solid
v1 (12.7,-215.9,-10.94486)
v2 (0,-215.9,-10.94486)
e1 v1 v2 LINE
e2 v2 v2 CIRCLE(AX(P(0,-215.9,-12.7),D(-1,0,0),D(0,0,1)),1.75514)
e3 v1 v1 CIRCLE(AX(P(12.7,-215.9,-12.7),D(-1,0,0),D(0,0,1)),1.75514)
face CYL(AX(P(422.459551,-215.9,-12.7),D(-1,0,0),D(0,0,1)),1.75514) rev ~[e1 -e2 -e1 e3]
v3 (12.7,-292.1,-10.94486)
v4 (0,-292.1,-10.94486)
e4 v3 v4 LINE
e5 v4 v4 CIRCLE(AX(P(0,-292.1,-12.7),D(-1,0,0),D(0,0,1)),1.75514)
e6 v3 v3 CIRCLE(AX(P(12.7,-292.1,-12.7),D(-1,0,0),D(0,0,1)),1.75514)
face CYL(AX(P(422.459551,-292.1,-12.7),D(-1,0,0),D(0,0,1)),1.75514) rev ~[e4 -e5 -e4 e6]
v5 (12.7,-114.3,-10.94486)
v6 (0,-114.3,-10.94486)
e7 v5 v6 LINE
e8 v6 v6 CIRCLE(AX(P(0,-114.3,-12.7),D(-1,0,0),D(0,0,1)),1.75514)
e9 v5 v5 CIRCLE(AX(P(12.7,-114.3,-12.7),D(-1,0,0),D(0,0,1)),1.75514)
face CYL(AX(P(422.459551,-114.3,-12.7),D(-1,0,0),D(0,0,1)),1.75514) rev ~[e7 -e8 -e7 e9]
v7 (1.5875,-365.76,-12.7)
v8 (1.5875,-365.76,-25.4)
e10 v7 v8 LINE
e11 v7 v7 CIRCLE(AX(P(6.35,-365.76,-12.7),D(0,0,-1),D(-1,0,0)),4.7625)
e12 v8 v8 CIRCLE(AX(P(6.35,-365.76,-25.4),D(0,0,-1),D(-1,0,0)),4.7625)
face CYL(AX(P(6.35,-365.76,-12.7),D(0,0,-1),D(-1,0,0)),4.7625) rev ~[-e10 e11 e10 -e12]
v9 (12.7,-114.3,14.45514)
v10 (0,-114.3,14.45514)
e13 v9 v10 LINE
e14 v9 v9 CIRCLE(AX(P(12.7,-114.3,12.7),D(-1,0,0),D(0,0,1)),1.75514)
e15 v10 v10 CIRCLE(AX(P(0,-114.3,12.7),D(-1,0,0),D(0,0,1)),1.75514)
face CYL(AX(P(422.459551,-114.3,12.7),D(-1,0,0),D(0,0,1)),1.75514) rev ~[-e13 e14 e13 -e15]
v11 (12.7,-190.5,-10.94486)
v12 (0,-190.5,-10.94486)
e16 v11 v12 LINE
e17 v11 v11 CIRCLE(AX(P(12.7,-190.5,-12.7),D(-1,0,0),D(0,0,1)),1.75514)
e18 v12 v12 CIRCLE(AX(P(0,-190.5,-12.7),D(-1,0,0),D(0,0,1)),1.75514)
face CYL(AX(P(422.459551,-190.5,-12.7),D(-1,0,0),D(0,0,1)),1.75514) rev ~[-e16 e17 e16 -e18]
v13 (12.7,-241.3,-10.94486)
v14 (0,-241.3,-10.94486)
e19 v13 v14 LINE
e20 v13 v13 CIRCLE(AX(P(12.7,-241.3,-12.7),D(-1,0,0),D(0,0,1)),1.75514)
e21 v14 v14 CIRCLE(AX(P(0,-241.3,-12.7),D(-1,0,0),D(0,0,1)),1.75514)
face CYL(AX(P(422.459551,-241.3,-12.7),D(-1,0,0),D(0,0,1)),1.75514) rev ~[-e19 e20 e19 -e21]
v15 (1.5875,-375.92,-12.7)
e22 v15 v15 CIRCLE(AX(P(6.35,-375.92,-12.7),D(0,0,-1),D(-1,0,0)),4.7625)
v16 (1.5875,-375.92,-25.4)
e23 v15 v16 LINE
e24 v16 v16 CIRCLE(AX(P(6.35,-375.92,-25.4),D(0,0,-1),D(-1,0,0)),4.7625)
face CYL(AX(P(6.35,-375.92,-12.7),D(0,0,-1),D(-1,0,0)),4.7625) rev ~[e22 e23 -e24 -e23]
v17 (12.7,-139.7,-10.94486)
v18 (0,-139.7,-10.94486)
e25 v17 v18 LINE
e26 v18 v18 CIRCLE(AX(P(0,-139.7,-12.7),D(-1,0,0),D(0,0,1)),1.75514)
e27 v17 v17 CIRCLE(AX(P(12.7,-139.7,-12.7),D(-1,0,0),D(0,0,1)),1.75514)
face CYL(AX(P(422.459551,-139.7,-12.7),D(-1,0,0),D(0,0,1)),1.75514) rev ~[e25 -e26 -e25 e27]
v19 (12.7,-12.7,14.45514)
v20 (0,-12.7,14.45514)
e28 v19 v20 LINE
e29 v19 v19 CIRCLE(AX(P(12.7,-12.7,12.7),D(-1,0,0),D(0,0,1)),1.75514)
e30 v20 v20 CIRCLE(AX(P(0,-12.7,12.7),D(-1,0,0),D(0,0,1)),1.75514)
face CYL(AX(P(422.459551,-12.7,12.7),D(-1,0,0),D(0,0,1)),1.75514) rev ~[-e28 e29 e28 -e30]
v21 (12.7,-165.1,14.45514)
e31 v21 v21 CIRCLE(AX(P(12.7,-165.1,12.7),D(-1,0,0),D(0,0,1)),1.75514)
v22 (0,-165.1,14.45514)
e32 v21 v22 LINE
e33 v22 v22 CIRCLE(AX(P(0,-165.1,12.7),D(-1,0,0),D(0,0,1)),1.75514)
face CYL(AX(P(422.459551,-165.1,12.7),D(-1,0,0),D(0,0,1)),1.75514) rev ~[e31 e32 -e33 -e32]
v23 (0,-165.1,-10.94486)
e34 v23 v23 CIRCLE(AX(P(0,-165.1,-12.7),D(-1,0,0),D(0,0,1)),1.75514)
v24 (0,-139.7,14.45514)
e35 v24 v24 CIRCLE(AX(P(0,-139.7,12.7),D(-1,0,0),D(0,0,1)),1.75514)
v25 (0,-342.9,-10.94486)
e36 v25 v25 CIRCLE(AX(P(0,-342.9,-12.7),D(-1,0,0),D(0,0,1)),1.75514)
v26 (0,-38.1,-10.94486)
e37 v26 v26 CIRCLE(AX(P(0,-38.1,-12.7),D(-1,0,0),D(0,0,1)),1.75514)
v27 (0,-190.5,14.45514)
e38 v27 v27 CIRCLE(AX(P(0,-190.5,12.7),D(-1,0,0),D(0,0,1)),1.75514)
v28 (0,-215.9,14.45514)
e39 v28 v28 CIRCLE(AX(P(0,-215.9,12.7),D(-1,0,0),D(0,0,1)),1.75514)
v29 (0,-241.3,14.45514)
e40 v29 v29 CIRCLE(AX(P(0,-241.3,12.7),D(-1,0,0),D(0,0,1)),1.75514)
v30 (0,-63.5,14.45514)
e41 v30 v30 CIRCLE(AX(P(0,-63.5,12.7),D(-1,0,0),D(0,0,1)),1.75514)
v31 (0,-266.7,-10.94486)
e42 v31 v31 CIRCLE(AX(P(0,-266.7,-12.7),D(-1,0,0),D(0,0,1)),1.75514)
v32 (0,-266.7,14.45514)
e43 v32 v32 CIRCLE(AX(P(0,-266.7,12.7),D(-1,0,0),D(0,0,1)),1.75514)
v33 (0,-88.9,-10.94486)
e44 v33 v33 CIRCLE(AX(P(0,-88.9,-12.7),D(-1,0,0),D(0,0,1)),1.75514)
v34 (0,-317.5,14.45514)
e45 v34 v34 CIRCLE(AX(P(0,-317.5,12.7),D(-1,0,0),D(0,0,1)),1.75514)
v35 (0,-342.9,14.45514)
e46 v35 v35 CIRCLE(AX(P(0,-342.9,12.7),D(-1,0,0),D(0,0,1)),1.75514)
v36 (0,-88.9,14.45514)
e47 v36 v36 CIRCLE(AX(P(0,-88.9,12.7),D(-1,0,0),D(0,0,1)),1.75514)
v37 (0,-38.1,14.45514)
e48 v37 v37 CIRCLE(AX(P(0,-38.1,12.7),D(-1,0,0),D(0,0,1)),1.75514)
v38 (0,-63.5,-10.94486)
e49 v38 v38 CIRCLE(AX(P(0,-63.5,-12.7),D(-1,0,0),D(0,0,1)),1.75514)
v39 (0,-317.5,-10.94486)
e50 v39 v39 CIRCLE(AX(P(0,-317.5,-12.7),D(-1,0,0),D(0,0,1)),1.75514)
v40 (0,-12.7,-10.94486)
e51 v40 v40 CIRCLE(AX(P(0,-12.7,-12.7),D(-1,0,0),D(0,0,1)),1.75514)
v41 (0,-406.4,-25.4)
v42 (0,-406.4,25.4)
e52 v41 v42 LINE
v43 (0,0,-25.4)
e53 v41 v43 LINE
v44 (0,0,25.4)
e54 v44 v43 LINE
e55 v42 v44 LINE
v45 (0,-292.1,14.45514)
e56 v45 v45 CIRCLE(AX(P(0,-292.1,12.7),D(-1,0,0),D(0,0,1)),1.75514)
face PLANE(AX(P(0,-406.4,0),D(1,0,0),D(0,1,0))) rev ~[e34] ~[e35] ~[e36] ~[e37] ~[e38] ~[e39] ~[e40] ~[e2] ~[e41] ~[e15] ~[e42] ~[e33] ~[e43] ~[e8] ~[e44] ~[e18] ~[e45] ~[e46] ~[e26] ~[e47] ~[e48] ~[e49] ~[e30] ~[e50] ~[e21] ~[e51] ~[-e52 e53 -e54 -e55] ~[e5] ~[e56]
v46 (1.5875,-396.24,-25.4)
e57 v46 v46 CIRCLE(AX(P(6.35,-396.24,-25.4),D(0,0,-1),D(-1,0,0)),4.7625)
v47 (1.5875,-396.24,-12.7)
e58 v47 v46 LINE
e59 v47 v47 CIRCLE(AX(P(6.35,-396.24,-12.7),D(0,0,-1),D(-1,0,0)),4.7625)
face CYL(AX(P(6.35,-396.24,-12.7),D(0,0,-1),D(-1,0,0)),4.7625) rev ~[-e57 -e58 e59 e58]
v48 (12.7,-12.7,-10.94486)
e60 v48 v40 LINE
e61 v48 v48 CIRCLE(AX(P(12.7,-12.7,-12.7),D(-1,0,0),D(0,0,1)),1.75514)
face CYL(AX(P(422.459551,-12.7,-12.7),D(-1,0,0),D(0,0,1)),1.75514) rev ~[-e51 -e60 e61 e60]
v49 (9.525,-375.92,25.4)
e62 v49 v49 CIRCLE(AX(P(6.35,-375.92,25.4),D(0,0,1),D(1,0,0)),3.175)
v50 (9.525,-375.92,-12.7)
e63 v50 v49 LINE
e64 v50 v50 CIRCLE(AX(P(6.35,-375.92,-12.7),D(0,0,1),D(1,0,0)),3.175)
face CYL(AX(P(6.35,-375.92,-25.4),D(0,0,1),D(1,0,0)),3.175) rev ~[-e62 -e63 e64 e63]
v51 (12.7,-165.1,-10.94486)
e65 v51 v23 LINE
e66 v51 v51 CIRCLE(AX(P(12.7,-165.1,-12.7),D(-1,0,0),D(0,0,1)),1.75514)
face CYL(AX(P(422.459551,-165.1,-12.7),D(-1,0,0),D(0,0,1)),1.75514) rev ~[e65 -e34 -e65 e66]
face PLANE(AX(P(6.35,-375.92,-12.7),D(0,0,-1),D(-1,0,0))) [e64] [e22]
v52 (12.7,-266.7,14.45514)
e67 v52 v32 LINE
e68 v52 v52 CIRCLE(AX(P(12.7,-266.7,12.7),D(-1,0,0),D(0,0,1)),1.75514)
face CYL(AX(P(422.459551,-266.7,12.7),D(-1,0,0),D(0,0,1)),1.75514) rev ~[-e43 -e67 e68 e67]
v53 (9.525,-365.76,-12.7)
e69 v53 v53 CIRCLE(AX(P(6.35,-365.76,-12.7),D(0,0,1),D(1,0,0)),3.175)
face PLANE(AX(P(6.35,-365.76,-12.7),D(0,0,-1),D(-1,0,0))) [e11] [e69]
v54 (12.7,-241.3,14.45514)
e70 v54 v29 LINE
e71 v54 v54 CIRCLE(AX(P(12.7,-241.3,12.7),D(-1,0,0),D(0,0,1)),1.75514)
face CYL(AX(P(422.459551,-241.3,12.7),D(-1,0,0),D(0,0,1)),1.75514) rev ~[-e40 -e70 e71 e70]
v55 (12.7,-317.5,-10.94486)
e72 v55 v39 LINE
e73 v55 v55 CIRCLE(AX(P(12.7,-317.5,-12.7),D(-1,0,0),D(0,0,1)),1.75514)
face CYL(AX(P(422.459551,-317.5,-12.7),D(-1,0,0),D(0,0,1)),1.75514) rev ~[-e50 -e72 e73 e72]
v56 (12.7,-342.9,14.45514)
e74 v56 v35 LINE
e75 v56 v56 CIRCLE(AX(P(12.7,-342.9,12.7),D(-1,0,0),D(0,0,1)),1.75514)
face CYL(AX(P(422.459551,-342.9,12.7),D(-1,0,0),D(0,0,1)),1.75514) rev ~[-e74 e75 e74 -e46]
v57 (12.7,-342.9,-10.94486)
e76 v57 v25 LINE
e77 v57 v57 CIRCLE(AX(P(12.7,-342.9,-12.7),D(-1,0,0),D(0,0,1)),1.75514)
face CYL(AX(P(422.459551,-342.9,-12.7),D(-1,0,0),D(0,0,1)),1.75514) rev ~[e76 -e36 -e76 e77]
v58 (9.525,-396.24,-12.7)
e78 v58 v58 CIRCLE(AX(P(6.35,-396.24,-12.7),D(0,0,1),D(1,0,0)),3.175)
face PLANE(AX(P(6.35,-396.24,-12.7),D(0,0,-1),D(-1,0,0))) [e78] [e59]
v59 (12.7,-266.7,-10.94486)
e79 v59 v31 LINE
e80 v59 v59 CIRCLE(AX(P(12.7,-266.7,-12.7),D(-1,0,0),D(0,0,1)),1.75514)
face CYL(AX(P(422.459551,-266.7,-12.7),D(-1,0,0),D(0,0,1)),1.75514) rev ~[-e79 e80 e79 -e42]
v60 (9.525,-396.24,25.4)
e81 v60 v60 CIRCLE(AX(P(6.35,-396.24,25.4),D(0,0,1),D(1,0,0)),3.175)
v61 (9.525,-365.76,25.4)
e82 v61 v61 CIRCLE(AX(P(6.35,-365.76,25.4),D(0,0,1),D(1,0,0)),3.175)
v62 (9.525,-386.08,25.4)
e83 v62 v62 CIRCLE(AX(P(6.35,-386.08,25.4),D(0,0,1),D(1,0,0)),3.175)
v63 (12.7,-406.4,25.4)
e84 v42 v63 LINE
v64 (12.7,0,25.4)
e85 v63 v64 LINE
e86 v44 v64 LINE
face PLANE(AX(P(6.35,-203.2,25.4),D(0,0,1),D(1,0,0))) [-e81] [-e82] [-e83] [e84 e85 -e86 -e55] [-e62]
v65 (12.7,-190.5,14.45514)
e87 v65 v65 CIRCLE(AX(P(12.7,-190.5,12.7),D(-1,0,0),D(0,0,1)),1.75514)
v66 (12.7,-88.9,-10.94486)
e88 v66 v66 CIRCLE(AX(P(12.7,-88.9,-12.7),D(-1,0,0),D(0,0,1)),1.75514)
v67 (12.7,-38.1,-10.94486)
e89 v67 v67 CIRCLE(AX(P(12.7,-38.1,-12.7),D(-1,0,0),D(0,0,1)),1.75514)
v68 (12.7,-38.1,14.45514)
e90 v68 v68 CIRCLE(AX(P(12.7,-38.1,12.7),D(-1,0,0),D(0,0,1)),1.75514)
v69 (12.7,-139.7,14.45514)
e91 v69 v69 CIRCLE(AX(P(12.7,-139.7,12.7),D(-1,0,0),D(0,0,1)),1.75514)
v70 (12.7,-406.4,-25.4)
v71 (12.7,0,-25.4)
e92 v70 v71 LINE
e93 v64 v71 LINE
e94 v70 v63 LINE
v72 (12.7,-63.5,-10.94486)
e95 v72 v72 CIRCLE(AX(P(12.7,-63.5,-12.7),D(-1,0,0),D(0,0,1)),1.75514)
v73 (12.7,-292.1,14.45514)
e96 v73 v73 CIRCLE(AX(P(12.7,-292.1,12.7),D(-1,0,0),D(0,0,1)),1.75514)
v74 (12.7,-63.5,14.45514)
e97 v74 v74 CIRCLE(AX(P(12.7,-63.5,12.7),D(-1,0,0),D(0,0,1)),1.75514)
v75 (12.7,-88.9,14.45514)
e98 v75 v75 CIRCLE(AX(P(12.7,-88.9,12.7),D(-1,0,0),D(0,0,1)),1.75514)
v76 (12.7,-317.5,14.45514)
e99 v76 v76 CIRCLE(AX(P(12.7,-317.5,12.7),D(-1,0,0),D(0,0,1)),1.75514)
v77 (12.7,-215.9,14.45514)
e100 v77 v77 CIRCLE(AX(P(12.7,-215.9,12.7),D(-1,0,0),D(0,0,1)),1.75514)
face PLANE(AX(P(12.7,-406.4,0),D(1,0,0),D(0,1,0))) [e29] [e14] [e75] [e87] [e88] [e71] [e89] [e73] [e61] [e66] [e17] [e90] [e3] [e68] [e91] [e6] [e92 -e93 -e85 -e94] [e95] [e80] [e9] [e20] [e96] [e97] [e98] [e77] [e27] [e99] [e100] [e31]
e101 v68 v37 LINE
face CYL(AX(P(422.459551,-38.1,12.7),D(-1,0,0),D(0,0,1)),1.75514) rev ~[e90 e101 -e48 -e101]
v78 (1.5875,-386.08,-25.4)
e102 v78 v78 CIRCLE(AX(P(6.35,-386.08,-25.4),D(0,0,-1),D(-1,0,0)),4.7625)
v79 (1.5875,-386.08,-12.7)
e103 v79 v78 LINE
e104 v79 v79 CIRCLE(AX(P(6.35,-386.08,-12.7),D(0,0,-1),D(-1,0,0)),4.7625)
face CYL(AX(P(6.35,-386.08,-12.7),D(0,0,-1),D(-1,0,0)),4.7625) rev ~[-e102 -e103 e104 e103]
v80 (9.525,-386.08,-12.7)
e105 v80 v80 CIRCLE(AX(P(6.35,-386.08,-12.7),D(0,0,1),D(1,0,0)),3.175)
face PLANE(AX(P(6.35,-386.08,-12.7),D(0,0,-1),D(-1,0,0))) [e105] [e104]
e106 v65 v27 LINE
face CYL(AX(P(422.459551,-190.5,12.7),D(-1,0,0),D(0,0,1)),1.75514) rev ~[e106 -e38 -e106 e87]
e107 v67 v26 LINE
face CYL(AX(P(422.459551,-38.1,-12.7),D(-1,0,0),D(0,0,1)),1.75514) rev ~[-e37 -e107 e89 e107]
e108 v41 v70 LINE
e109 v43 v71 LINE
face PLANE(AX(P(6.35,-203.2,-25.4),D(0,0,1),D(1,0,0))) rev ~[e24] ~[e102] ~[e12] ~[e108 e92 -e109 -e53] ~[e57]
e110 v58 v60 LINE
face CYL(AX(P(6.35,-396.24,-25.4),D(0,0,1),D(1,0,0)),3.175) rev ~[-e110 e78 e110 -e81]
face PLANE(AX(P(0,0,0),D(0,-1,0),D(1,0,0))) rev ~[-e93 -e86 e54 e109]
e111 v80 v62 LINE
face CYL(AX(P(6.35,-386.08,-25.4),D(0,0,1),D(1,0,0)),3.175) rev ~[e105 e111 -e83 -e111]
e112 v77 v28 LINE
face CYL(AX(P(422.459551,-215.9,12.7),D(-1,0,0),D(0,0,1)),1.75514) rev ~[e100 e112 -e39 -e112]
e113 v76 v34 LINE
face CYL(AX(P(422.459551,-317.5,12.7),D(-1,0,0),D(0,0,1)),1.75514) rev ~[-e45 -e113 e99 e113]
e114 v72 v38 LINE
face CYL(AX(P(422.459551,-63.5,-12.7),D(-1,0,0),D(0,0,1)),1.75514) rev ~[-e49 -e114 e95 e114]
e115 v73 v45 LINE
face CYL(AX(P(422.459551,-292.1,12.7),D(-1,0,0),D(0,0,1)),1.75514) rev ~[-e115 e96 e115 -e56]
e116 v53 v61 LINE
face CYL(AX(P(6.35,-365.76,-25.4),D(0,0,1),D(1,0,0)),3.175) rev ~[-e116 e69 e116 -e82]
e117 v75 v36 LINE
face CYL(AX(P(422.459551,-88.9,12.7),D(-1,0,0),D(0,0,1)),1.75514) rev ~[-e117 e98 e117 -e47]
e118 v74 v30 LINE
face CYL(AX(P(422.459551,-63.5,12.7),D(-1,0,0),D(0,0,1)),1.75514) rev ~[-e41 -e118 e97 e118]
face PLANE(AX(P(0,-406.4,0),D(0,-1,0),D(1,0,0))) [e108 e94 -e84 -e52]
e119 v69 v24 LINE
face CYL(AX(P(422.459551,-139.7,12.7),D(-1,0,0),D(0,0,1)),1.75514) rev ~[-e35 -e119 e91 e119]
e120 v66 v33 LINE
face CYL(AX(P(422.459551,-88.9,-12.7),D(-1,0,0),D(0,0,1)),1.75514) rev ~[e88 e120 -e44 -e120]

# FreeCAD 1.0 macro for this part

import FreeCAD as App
import Part
import Sketcher

V = App.Vector
Q = App.Units.Quantity


def add_polygon(sketch, points):
    """Adds a closed chain of lines whose ends are joined by coincident constraints."""
    first, n = sketch.GeometryCount, len(points)
    for a, b in zip(points, points[1:] + points[:1]):
        sketch.addGeometry(Part.LineSegment(App.Vector(*a, 0), App.Vector(*b, 0)), False)
    for i in range(n):
        sketch.addConstraint(Sketcher.Constraint("Coincident", first + i, 2, first + (i + 1) % n, 1))

doc = App.newDocument("Part")
body = doc.addObject("PartDesign::Body", "Body")

# Sketch on XY plane
sketch1 = body.newObject("Sketcher::SketchObject", "Sketch")
sketch1.AttachmentSupport = (doc.getObject("XY_Plane"), [""])
sketch1.MapMode = "FlatFace"
add_polygon(sketch1, [(0, 0), (0, -406.4), (12.7, -406.4), (12.7, 0)])  # lines 0-3
sketch1.addConstraint([
    Sketcher.Constraint("Vertical", 0),
    Sketcher.Constraint("Horizontal", 1),
    Sketcher.Constraint("Vertical", 2),
    Sketcher.Constraint("Horizontal", 3),
    Sketcher.Constraint("Coincident", 3, 2, -1, 1),
    Sketcher.Constraint("DistanceY", 0, 2, 0, 1, Q("16 in")),
    Sketcher.Constraint("DistanceX", 1, 1, 1, 2, Q("0.5 in")),
])
pad1 = body.newObject("PartDesign::Pad", "Pad")
pad1.Profile = sketch1
pad1.Length = Q("2 in")
pad1.Midplane = True

# Sketch on YZ plane
sketch2 = body.newObject("Sketcher::SketchObject", "Sketch001")
sketch2.AttachmentSupport = (doc.getObject("YZ_Plane"), [""])
sketch2.MapMode = "FlatFace"
sketch2.AttachmentOffset = App.Placement(V(0, 0, 0.5 * 25.4), App.Rotation())
sketch2.addGeometry([
    Part.Circle(V(-12.7, 12.7, 0), V(0, 0, 1), 1.75514),  # 0
    Part.Circle(V(-12.7, -12.7, 0), V(0, 0, 1), 1.75514),  # 1
    Part.Circle(V(-38.1, 12.7, 0), V(0, 0, 1), 1.75514),  # 2
    Part.Circle(V(-38.1, -12.7, 0), V(0, 0, 1), 1.75514),  # 3
    Part.Circle(V(-63.5, 12.7, 0), V(0, 0, 1), 1.75514),  # 4
    Part.Circle(V(-63.5, -12.7, 0), V(0, 0, 1), 1.75514),  # 5
    Part.Circle(V(-88.9, 12.7, 0), V(0, 0, 1), 1.75514),  # 6
    Part.Circle(V(-88.9, -12.7, 0), V(0, 0, 1), 1.75514),  # 7
    Part.Circle(V(-114.3, 12.7, 0), V(0, 0, 1), 1.75514),  # 8
    Part.Circle(V(-114.3, -12.7, 0), V(0, 0, 1), 1.75514),  # 9
    Part.Circle(V(-139.7, 12.7, 0), V(0, 0, 1), 1.75514),  # 10
    Part.Circle(V(-139.7, -12.7, 0), V(0, 0, 1), 1.75514),  # 11
    Part.Circle(V(-165.1, 12.7, 0), V(0, 0, 1), 1.75514),  # 12
    Part.Circle(V(-165.1, -12.7, 0), V(0, 0, 1), 1.75514),  # 13
    Part.Circle(V(-190.5, 12.7, 0), V(0, 0, 1), 1.75514),  # 14
    Part.Circle(V(-190.5, -12.7, 0), V(0, 0, 1), 1.75514),  # 15
    Part.Circle(V(-215.9, 12.7, 0), V(0, 0, 1), 1.75514),  # 16
    Part.Circle(V(-215.9, -12.7, 0), V(0, 0, 1), 1.75514),  # 17
    Part.Circle(V(-241.3, 12.7, 0), V(0, 0, 1), 1.75514),  # 18
    Part.Circle(V(-241.3, -12.7, 0), V(0, 0, 1), 1.75514),  # 19
    Part.Circle(V(-266.7, 12.7, 0), V(0, 0, 1), 1.75514),  # 20
    Part.Circle(V(-266.7, -12.7, 0), V(0, 0, 1), 1.75514),  # 21
    Part.Circle(V(-292.1, 12.7, 0), V(0, 0, 1), 1.75514),  # 22
    Part.Circle(V(-292.1, -12.7, 0), V(0, 0, 1), 1.75514),  # 23
    Part.Circle(V(-317.5, 12.7, 0), V(0, 0, 1), 1.75514),  # 24
    Part.Circle(V(-317.5, -12.7, 0), V(0, 0, 1), 1.75514),  # 25
    Part.Circle(V(-342.9, 12.7, 0), V(0, 0, 1), 1.75514),  # 26
    Part.Circle(V(-342.9, -12.7, 0), V(0, 0, 1), 1.75514),  # 27
], False)
sketch2.addConstraint([
    Sketcher.Constraint("Equal", 0, 1),
    Sketcher.Constraint("Equal", 1, 2),
    Sketcher.Constraint("Equal", 2, 3),
    Sketcher.Constraint("Equal", 3, 4),
    Sketcher.Constraint("Equal", 4, 5),
    Sketcher.Constraint("Equal", 5, 6),
    Sketcher.Constraint("Equal", 6, 7),
    Sketcher.Constraint("Equal", 7, 8),
    Sketcher.Constraint("Equal", 8, 9),
    Sketcher.Constraint("Equal", 9, 10),
    Sketcher.Constraint("Equal", 10, 11),
    Sketcher.Constraint("Equal", 11, 12),
    Sketcher.Constraint("Equal", 12, 13),
    Sketcher.Constraint("Equal", 13, 14),
    Sketcher.Constraint("Equal", 14, 15),
    Sketcher.Constraint("Equal", 15, 16),
    Sketcher.Constraint("Equal", 16, 17),
    Sketcher.Constraint("Equal", 17, 18),
    Sketcher.Constraint("Equal", 18, 19),
    Sketcher.Constraint("Equal", 19, 20),
    Sketcher.Constraint("Equal", 20, 21),
    Sketcher.Constraint("Equal", 21, 22),
    Sketcher.Constraint("Equal", 22, 23),
    Sketcher.Constraint("Equal", 23, 24),
    Sketcher.Constraint("Equal", 24, 25),
    Sketcher.Constraint("Equal", 25, 26),
    Sketcher.Constraint("Equal", 26, 27),
    Sketcher.Constraint("Symmetric", 0, 3, 1, 3, -1),
    Sketcher.Constraint("Symmetric", 2, 3, 3, 3, -1),
    Sketcher.Constraint("Symmetric", 4, 3, 5, 3, -1),
    Sketcher.Constraint("Symmetric", 6, 3, 7, 3, -1),
    Sketcher.Constraint("Symmetric", 8, 3, 9, 3, -1),
    Sketcher.Constraint("Symmetric", 10, 3, 11, 3, -1),
    Sketcher.Constraint("Symmetric", 12, 3, 13, 3, -1),
    Sketcher.Constraint("Symmetric", 14, 3, 15, 3, -1),
    Sketcher.Constraint("Symmetric", 16, 3, 17, 3, -1),
    Sketcher.Constraint("Symmetric", 18, 3, 19, 3, -1),
    Sketcher.Constraint("Symmetric", 20, 3, 21, 3, -1),
    Sketcher.Constraint("Symmetric", 22, 3, 23, 3, -1),
    Sketcher.Constraint("Symmetric", 24, 3, 25, 3, -1),
    Sketcher.Constraint("Symmetric", 26, 3, 27, 3, -1),
    Sketcher.Constraint("Horizontal", 0, 3, 2, 3),
    Sketcher.Constraint("Horizontal", 2, 3, 4, 3),
    Sketcher.Constraint("Horizontal", 4, 3, 6, 3),
    Sketcher.Constraint("Horizontal", 6, 3, 8, 3),
    Sketcher.Constraint("Horizontal", 8, 3, 10, 3),
    Sketcher.Constraint("Horizontal", 10, 3, 12, 3),
    Sketcher.Constraint("Horizontal", 12, 3, 14, 3),
    Sketcher.Constraint("Horizontal", 14, 3, 16, 3),
    Sketcher.Constraint("Horizontal", 16, 3, 18, 3),
    Sketcher.Constraint("Horizontal", 18, 3, 20, 3),
    Sketcher.Constraint("Horizontal", 20, 3, 22, 3),
    Sketcher.Constraint("Horizontal", 22, 3, 24, 3),
    Sketcher.Constraint("Horizontal", 24, 3, 26, 3),
    Sketcher.Constraint("DistanceY", 1, 3, 0, 3, Q("1 in")),
    Sketcher.Constraint("DistanceX", 2, 3, 0, 3, Q("1 in")),
    Sketcher.Constraint("DistanceX", 4, 3, 2, 3, Q("1 in")),
    Sketcher.Constraint("DistanceX", 6, 3, 4, 3, Q("1 in")),
    Sketcher.Constraint("DistanceX", 8, 3, 6, 3, Q("1 in")),
    Sketcher.Constraint("DistanceX", 10, 3, 8, 3, Q("1 in")),
    Sketcher.Constraint("DistanceX", 12, 3, 10, 3, Q("1 in")),
    Sketcher.Constraint("DistanceX", 14, 3, 12, 3, Q("1 in")),
    Sketcher.Constraint("DistanceX", 16, 3, 14, 3, Q("1 in")),
    Sketcher.Constraint("DistanceX", 18, 3, 16, 3, Q("1 in")),
    Sketcher.Constraint("DistanceX", 20, 3, 18, 3, Q("1 in")),
    Sketcher.Constraint("DistanceX", 22, 3, 20, 3, Q("1 in")),
    Sketcher.Constraint("DistanceX", 24, 3, 22, 3, Q("1 in")),
    Sketcher.Constraint("DistanceX", 26, 3, 24, 3, Q("1 in")),
    Sketcher.Constraint("Diameter", 0, Q("0.1382 in")),
    Sketcher.Constraint("DistanceX", 0, 3, -1, 1, Q("0.5 in")),
])
doc.recompute()
hole = body.newObject("PartDesign::Hole", "Hole")
hole.Profile = sketch2
hole.ThreadType = "None"
hole.Diameter = Q("0.1382 in")
hole.DepthType = "ThroughAll"

# Sketch on XY plane
sketch3 = body.newObject("Sketcher::SketchObject", "Sketch002")
sketch3.AttachmentSupport = (doc.getObject("XY_Plane"), [""])
sketch3.MapMode = "FlatFace"
sketch3.AttachmentOffset = App.Placement(V(0, 0, -1 * 25.4), App.Rotation())
sketch3.addGeometry([
    Part.Circle(V(6.35, -396.24, 0), V(0, 0, 1), 3.175),
    Part.Circle(V(6.35, -386.08, 0), V(0, 0, 1), 3.175),
    Part.Circle(V(6.35, -375.92, 0), V(0, 0, 1), 3.175),
    Part.Circle(V(6.35, -365.76, 0), V(0, 0, 1), 3.175),
], False)
sketch3.addConstraint([
    Sketcher.Constraint("Equal", 0, 1),
    Sketcher.Constraint("Equal", 1, 2),
    Sketcher.Constraint("Equal", 2, 3),
    Sketcher.Constraint("Vertical", 0, 3, 1, 3),
    Sketcher.Constraint("Vertical", 1, 3, 2, 3),
    Sketcher.Constraint("Vertical", 2, 3, 3, 3),
    Sketcher.Constraint("Diameter", 0, Q("0.25 in")),
    Sketcher.Constraint("DistanceY", 0, 3, -1, 1, Q("15.6 in")),
    Sketcher.Constraint("DistanceY", 1, 3, -1, 1, Q("15.2 in")),
    Sketcher.Constraint("DistanceY", 2, 3, -1, 1, Q("14.8 in")),
    Sketcher.Constraint("DistanceY", 3, 3, -1, 1, Q("14.4 in")),
    Sketcher.Constraint("DistanceX", -1, 1, 0, 3, Q("0.25 in")),
])
doc.recompute()
hole2 = body.newObject("PartDesign::Hole", "Hole001")
hole2.Profile = sketch3
hole2.ThreadType = "None"
hole2.Diameter = Q("0.25 in")
hole2.DepthType = "ThroughAll"
hole2.HoleCutType = "Counterbore"
hole2.HoleCutDiameter = Q("0.375 in")
hole2.HoleCutDepth = Q("0.5 in")
hole2.Reversed = True

doc.recompute()
